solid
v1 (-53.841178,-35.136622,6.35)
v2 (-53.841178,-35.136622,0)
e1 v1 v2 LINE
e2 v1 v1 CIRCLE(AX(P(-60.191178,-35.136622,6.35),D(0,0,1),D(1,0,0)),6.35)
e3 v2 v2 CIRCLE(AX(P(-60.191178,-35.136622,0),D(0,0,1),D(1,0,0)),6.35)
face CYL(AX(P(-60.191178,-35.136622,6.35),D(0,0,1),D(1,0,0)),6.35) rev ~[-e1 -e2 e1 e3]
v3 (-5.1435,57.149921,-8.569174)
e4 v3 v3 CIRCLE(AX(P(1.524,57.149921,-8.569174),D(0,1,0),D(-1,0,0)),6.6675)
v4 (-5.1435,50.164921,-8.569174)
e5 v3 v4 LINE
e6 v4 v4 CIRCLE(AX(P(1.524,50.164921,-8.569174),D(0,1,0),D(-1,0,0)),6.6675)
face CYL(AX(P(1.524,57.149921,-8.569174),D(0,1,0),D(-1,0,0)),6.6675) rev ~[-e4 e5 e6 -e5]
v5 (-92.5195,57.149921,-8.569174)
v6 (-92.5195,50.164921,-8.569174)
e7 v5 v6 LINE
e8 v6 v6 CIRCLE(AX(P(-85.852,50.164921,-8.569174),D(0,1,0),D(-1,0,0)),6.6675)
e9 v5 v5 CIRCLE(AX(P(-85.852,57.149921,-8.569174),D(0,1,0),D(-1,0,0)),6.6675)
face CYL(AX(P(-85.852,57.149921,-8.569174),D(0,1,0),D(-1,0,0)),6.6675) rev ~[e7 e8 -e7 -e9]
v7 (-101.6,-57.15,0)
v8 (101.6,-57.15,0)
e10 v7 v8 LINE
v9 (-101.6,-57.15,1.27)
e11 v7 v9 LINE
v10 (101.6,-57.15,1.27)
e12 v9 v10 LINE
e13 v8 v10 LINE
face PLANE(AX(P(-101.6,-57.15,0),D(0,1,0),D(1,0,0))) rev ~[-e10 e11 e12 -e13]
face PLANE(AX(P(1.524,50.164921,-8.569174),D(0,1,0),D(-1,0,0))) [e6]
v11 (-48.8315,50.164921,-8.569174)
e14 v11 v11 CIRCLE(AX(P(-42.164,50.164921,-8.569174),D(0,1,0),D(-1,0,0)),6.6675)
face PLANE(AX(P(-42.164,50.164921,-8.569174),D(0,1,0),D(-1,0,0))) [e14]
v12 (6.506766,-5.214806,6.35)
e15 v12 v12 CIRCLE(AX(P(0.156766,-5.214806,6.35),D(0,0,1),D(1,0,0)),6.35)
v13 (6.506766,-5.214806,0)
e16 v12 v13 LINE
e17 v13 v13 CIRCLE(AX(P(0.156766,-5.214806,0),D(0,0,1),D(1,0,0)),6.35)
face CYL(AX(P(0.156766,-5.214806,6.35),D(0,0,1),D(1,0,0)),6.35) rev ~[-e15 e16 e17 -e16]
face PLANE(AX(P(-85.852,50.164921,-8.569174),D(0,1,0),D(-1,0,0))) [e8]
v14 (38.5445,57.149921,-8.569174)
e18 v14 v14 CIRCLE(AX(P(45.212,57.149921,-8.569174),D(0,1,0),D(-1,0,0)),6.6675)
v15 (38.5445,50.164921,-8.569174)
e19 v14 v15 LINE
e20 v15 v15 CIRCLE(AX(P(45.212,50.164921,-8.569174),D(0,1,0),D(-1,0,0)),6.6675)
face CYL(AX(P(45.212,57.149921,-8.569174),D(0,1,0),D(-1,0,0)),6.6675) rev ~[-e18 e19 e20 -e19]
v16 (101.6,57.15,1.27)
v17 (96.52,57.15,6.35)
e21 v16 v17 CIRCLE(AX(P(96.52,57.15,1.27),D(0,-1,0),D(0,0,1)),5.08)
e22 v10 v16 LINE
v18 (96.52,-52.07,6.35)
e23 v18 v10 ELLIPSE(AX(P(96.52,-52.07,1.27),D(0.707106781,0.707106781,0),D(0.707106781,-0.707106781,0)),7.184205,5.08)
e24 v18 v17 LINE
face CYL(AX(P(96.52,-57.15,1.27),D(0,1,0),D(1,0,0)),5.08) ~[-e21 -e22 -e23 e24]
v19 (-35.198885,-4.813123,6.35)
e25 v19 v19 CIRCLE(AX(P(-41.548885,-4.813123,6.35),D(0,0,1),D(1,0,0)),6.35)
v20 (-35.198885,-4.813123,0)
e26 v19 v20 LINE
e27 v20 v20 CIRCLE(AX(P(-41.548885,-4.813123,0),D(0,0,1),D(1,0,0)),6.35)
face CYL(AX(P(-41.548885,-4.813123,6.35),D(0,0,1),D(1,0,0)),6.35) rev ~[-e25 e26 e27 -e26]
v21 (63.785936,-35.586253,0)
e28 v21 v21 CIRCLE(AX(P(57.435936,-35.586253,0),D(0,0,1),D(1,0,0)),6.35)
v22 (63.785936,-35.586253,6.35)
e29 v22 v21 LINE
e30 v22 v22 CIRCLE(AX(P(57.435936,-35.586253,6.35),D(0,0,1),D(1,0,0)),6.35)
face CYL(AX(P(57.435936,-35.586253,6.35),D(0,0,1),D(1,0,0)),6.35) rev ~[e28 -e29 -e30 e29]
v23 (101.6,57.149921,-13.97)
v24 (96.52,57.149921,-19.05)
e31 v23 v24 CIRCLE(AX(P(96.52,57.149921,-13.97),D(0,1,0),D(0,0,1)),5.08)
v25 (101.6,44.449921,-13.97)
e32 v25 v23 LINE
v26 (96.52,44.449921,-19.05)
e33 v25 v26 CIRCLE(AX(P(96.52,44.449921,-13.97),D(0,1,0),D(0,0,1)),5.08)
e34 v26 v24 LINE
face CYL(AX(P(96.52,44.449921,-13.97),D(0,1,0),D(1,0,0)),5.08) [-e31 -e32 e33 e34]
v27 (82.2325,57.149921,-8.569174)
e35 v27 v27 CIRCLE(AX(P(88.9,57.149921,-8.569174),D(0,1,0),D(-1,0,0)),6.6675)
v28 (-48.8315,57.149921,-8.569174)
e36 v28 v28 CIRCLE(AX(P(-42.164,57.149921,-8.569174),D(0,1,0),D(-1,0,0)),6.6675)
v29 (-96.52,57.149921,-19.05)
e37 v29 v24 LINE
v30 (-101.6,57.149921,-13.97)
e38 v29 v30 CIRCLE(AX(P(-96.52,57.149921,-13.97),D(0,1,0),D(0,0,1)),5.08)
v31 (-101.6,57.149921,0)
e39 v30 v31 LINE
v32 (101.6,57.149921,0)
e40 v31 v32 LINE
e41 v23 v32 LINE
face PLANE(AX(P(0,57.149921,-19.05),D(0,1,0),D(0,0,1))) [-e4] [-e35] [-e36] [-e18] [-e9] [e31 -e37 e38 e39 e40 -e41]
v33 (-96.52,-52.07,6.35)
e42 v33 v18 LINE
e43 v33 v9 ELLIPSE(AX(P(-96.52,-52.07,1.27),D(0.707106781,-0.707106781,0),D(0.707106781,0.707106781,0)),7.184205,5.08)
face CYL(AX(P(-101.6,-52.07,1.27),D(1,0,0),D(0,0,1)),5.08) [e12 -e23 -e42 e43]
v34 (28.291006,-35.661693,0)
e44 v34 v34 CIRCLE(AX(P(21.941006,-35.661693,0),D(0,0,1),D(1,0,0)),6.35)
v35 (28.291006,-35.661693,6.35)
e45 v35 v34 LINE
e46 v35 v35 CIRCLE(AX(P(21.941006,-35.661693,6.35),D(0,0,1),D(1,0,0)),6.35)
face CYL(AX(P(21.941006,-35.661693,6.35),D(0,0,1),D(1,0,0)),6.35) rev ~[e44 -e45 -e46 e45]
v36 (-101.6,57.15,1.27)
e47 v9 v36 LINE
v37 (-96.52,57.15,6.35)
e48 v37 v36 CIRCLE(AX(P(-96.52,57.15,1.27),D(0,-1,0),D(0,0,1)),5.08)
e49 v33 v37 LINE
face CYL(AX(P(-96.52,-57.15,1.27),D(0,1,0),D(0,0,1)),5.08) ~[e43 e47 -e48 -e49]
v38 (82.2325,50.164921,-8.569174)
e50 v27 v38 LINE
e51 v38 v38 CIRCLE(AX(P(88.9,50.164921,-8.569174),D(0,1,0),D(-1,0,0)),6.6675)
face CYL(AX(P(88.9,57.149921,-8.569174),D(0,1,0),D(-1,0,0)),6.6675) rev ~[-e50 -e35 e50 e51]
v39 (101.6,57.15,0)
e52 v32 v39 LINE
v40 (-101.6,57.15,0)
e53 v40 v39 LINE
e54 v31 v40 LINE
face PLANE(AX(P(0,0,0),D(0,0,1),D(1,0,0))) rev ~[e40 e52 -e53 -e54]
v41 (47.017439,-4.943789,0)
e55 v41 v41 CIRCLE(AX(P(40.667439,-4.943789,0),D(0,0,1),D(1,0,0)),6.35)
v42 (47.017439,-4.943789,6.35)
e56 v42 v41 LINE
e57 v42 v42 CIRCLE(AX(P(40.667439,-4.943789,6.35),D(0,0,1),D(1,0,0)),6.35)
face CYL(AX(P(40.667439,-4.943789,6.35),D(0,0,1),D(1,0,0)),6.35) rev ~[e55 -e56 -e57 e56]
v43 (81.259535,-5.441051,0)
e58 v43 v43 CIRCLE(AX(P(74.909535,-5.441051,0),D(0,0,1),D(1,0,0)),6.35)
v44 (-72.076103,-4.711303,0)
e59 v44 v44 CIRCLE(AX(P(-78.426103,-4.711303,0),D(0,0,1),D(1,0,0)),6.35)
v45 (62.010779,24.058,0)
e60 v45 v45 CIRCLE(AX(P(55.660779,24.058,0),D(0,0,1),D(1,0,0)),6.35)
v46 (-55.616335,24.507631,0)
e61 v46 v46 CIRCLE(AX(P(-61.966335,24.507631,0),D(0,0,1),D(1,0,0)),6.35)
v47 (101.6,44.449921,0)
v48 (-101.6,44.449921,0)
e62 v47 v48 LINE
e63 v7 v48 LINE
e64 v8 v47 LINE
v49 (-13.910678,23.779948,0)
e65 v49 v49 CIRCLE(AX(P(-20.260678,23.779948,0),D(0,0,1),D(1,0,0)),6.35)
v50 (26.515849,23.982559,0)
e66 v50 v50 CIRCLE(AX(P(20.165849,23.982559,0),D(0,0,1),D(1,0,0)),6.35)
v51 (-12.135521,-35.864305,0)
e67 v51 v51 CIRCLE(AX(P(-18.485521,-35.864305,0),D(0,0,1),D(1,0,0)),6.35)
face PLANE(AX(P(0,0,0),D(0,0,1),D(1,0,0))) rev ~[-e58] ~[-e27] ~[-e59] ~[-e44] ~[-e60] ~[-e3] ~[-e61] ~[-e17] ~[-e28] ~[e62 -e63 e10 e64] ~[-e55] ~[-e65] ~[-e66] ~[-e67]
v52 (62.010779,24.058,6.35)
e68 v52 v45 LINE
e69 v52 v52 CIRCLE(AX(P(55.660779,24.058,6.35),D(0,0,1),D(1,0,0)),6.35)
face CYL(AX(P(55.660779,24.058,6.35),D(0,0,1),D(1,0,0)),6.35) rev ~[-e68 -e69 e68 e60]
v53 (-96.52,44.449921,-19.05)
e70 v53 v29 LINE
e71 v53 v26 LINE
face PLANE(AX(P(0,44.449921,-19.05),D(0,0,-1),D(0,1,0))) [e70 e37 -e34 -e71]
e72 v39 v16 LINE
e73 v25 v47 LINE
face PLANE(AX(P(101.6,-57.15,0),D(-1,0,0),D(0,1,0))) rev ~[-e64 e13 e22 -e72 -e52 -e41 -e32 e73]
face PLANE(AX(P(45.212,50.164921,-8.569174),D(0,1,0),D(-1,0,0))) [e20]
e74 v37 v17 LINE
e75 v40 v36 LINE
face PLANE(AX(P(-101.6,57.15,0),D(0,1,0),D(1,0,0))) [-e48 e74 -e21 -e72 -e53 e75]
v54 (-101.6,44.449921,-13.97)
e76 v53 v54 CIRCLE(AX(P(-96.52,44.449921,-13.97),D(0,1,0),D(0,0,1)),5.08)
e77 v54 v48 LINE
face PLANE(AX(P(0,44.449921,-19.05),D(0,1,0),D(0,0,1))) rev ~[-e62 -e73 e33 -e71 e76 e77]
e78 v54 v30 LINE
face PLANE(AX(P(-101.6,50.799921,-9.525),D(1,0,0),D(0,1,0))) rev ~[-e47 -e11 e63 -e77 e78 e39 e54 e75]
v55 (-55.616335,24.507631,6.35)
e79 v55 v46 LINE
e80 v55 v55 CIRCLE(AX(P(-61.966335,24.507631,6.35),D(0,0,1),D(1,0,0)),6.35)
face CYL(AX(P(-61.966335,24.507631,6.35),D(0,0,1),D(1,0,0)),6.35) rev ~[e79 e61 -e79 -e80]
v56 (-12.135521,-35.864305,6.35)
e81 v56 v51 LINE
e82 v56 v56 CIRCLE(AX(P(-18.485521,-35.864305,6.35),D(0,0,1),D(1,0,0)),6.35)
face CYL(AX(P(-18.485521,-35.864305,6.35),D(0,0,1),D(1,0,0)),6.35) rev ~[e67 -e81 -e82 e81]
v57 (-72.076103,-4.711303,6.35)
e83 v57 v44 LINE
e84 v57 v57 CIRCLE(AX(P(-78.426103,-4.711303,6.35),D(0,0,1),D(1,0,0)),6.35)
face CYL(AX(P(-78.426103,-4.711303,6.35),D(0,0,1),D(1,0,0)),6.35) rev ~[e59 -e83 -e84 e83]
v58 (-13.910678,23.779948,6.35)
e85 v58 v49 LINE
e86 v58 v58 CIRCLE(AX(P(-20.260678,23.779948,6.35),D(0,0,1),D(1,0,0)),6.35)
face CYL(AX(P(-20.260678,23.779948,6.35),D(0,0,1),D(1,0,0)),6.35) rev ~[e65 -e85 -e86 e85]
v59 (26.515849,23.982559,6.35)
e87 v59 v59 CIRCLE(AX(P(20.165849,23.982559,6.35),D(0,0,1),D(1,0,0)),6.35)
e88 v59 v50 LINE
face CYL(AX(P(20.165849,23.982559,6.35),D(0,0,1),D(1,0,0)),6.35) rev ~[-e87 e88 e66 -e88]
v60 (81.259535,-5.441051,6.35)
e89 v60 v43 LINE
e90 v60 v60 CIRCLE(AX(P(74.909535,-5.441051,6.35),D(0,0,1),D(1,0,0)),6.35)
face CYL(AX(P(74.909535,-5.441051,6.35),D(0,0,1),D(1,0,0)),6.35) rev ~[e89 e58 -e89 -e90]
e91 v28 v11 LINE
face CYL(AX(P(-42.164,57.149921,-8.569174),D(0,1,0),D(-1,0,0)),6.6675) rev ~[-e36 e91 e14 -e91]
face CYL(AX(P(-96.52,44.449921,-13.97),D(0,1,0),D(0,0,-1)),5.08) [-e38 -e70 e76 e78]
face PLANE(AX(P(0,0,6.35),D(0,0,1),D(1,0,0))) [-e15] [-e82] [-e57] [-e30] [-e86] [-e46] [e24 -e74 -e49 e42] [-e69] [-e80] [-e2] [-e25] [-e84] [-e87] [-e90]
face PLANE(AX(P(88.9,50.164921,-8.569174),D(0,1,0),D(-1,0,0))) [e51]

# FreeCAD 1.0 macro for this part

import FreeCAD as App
import Part
import Sketcher

V = App.Vector
Q = App.Units.Quantity


def edges_at(feature, points):
    """Names of the edges that pass closest to the given points."""
    edges = feature.Shape.Edges
    near = lambda p: min(range(len(edges)), key=lambda i: edges[i].distToShape(Part.Vertex(*p))[0])
    return sorted({f"Edge{near(p) + 1}" for p in points})


def add_polygon(sketch, points):
    """Adds a closed chain of lines whose ends are joined by coincident constraints."""
    first, n = sketch.GeometryCount, len(points)
    for a, b in zip(points, points[1:] + points[:1]):
        sketch.addGeometry(Part.LineSegment(App.Vector(*a, 0), App.Vector(*b, 0)), False)
    for i in range(n):
        sketch.addConstraint(Sketcher.Constraint("Coincident", first + i, 2, first + (i + 1) % n, 1))

doc = App.newDocument("Part")
body = doc.addObject("PartDesign::Body", "Body")

# Sketch on XY plane
sketch1 = body.newObject("Sketcher::SketchObject", "Sketch")
sketch1.AttachmentSupport = (doc.getObject("XY_Plane"), [""])
sketch1.MapMode = "FlatFace"
add_polygon(sketch1, [(-101.6, 57.15), (-101.6, -57.15), (101.6, -57.15), (101.6, 57.15)])  # lines 0-3
sketch1.addConstraint([
    Sketcher.Constraint("Vertical", 0),
    Sketcher.Constraint("Horizontal", 1),
    Sketcher.Constraint("Vertical", 2),
    Sketcher.Constraint("Horizontal", 3),
    Sketcher.Constraint("Symmetric", 0, 2, 2, 2, -1, 1),
    Sketcher.Constraint("DistanceX", 1, 1, 1, 2, Q("8 in")),
    Sketcher.Constraint("DistanceY", 0, 2, 0, 1, Q("4.5 in")),
])
pad1 = body.newObject("PartDesign::Pad", "Pad")
pad1.Profile = sketch1
pad1.Length = Q("0.25 in")

# Sketch on YZ plane
sketch2 = body.newObject("Sketcher::SketchObject", "Sketch001")
sketch2.AttachmentSupport = (doc.getObject("YZ_Plane"), [""])
sketch2.MapMode = "FlatFace"
add_polygon(sketch2, [(44.449921, 0), (44.449921, -19.05), (57.149921, -19.05), (57.149921, 0)])  # lines 0-3
sketch2.addConstraint([
    Sketcher.Constraint("Vertical", 0),
    Sketcher.Constraint("Horizontal", 1),
    Sketcher.Constraint("Vertical", 2),
    Sketcher.Constraint("Horizontal", 3),
    Sketcher.Constraint("PointOnObject", 2, 2, -1),
    Sketcher.Constraint("DistanceX", 1, 1, 1, 2, Q("0.5 in")),
    Sketcher.Constraint("DistanceY", 0, 2, 0, 1, Q("0.75 in")),
    Sketcher.Constraint("DistanceX", -1, 1, 0, 2, Q("44.449921 mm")),
])
pad2 = body.newObject("PartDesign::Pad", "Pad001")
pad2.Profile = sketch2
pad2.Type = "TwoLengths"
pad2.Length = Q("4 in")
pad2.Length2 = Q("4 in")
doc.recompute()

fillet = body.newObject("PartDesign::Fillet", "Fillet")
fillet.Base = (pad2, edges_at(pad2, [(0, -57.15, 6.35), (-101.6, 0, 6.35), (101.6, 0, 6.35)]))
fillet.Radius = Q("0.2 in")

# Sketch on XY plane
sketch3 = body.newObject("Sketcher::SketchObject", "Sketch002")
sketch3.AttachmentSupport = (doc.getObject("XY_Plane"), [""])
sketch3.MapMode = "FlatFace"
sketch3.AttachmentOffset = App.Placement(V(0, 0, 0.25 * 25.4), App.Rotation())
sketch3.addGeometry([
    Part.Circle(V(-78.426103, -4.711303, 0), V(0, 0, 1), 6.35),  # 0
    Part.Circle(V(-20.260678, 23.779948, 0), V(0, 0, 1), 6.35),  # 1
    Part.Circle(V(-61.966335, 24.507631, 0), V(0, 0, 1), 6.35),  # 2
    Part.Circle(V(21.941006, -35.661693, 0), V(0, 0, 1), 6.35),  # 3
    Part.Circle(V(20.165849, 23.982559, 0), V(0, 0, 1), 6.35),  # 4
    Part.Circle(V(0.156766, -5.214806, 0), V(0, 0, 1), 6.35),  # 5
    Part.Circle(V(55.660779, 24.058, 0), V(0, 0, 1), 6.35),  # 6
    Part.Circle(V(74.909535, -5.441051, 0), V(0, 0, 1), 6.35),  # 7
    Part.Circle(V(-41.548885, -4.813123, 0), V(0, 0, 1), 6.35),  # 8
    Part.Circle(V(-18.485521, -35.864305, 0), V(0, 0, 1), 6.35),  # 9
    Part.Circle(V(40.667439, -4.943789, 0), V(0, 0, 1), 6.35),  # 10
    Part.Circle(V(-60.191178, -35.136622, 0), V(0, 0, 1), 6.35),  # 11
    Part.Circle(V(57.435936, -35.586253, 0), V(0, 0, 1), 6.35),  # 12
], False)
sketch3.addConstraint([
    Sketcher.Constraint("Equal", 0, 1),
    Sketcher.Constraint("Equal", 1, 2),
    Sketcher.Constraint("Equal", 2, 3),
    Sketcher.Constraint("Equal", 3, 4),
    Sketcher.Constraint("Equal", 4, 5),
    Sketcher.Constraint("Equal", 5, 6),
    Sketcher.Constraint("Equal", 6, 7),
    Sketcher.Constraint("Equal", 7, 8),
    Sketcher.Constraint("Equal", 8, 9),
    Sketcher.Constraint("Equal", 9, 10),
    Sketcher.Constraint("Equal", 10, 11),
    Sketcher.Constraint("Equal", 11, 12),
    Sketcher.Constraint("Diameter", 0, Q("0.5 in")),
    Sketcher.Constraint("DistanceY", -1, 1, 6, 3, Q("24.058 mm")),
    Sketcher.Constraint("DistanceX", 2, 3, 5, 3, Q("62.123101 mm")),
    Sketcher.Constraint("DistanceY", 7, 3, 1, 3, Q("29.220999 mm")),
    Sketcher.Constraint("DistanceY", 9, 3, 5, 3, Q("30.649499 mm")),
    Sketcher.Constraint("DistanceY", 11, 3, 8, 3, Q("30.323499 mm")),
    Sketcher.Constraint("DistanceX", 12, 3, 7, 3, Q("17.473599 mm")),
    Sketcher.Constraint("DistanceY", 12, 3, 7, 3, Q("30.145202 mm")),
    Sketcher.Constraint("DistanceY", -1, 1, 1, 3, Q("23.779948 mm")),
    Sketcher.Constraint("DistanceY", -1, 1, 2, 3, Q("24.507631 mm")),
    Sketcher.Constraint("DistanceX", -1, 1, 4, 3, Q("20.165849 mm")),
    Sketcher.Constraint("DistanceY", -1, 1, 4, 3, Q("23.982559 mm")),
    Sketcher.Constraint("DistanceX", -1, 1, 6, 3, Q("55.660779 mm")),
    Sketcher.Constraint("DistanceX", 9, 3, -1, 1, Q("18.485521 mm")),
    Sketcher.Constraint("DistanceX", -1, 1, 10, 3, Q("40.667439 mm")),
    Sketcher.Constraint("DistanceY", 10, 3, -1, 1, Q("4.943789 mm")),
    Sketcher.Constraint("DistanceY", 0, 3, 1, 3, Q("28.491251 mm")),
    Sketcher.Constraint("DistanceY", 3, 3, 1, 3, Q("59.441641 mm")),
    Sketcher.Constraint("DistanceX", 2, 3, 3, 3, Q("83.907341 mm")),
    Sketcher.Constraint("DistanceX", 0, 3, 3, 3, Q("100.367109 mm")),
    Sketcher.Constraint("DistanceX", 0, 3, 4, 3, Q("98.591952 mm")),
    Sketcher.Constraint("DistanceX", 3, 3, 7, 3, Q("52.968529 mm")),
    Sketcher.Constraint("DistanceY", 8, 3, 1, 3, Q("28.593071 mm")),
    Sketcher.Constraint("DistanceX", 2, 3, 8, 3, Q("20.41745 mm")),
    Sketcher.Constraint("DistanceX", 1, 3, -1, 1, Q("20.260678 mm")),
    Sketcher.Constraint("DistanceY", 5, 3, -1, 1, Q("5.214806 mm")),
    Sketcher.Constraint("DistanceX", 11, 3, -1, 1, Q("60.191178 mm")),
])
pocket1 = body.newObject("PartDesign::Pocket", "Pocket")
pocket1.Profile = sketch3
pocket1.Type = "ThroughAll"
doc.recompute()

fillet2 = body.newObject("PartDesign::Fillet", "Fillet001")
fillet2.Base = (pocket1, edges_at(pocket1, [(-101.6, 50.8, -19.05), (101.6, 50.8, -19.05)]))
fillet2.Radius = Q("0.2 in")

# Sketch on XZ plane
sketch4 = body.newObject("Sketcher::SketchObject", "Sketch003")
sketch4.AttachmentSupport = (doc.getObject("XZ_Plane"), [""])
sketch4.MapMode = "FlatFace"
sketch4.AttachmentOffset = App.Placement(V(0, 0, -57.149921), App.Rotation())
sketch4.addGeometry([
    Part.Circle(V(45.212, -8.569174, 0), V(0, 0, 1), 6.6675),  # 0
    Part.Circle(V(88.9, -8.569174, 0), V(0, 0, 1), 6.6675),  # 1
    Part.Circle(V(1.524, -8.569174, 0), V(0, 0, 1), 6.6675),  # 2
    Part.Circle(V(-42.164, -8.569174, 0), V(0, 0, 1), 6.6675),  # 3
    Part.Circle(V(-85.852, -8.569174, 0), V(0, 0, 1), 6.6675),  # 4
], False)
sketch4.addConstraint([
    Sketcher.Constraint("Equal", 0, 1),
    Sketcher.Constraint("Equal", 1, 2),
    Sketcher.Constraint("Equal", 2, 3),
    Sketcher.Constraint("Equal", 3, 4),
    Sketcher.Constraint("Horizontal", 0, 3, 1, 3),
    Sketcher.Constraint("Horizontal", 1, 3, 2, 3),
    Sketcher.Constraint("Horizontal", 2, 3, 3, 3),
    Sketcher.Constraint("Horizontal", 3, 3, 4, 3),
    Sketcher.Constraint("Diameter", 0, Q("0.525 in")),
    Sketcher.Constraint("DistanceX", -1, 1, 1, 3, Q("3.5 in")),
    Sketcher.Constraint("DistanceX", -1, 1, 0, 3, Q("1.78 in")),
    Sketcher.Constraint("DistanceX", -1, 1, 2, 3, Q("0.06 in")),
    Sketcher.Constraint("DistanceX", 3, 3, -1, 1, Q("1.66 in")),
    Sketcher.Constraint("DistanceX", 4, 3, -1, 1, Q("3.38 in")),
    Sketcher.Constraint("DistanceY", 0, 3, -1, 1, Q("8.569174 mm")),
])
pocket2 = body.newObject("PartDesign::Pocket", "Pocket001")
pocket2.Profile = sketch4
pocket2.Length = Q("0.275 in")
pocket2.Reversed = True

doc.recompute()
